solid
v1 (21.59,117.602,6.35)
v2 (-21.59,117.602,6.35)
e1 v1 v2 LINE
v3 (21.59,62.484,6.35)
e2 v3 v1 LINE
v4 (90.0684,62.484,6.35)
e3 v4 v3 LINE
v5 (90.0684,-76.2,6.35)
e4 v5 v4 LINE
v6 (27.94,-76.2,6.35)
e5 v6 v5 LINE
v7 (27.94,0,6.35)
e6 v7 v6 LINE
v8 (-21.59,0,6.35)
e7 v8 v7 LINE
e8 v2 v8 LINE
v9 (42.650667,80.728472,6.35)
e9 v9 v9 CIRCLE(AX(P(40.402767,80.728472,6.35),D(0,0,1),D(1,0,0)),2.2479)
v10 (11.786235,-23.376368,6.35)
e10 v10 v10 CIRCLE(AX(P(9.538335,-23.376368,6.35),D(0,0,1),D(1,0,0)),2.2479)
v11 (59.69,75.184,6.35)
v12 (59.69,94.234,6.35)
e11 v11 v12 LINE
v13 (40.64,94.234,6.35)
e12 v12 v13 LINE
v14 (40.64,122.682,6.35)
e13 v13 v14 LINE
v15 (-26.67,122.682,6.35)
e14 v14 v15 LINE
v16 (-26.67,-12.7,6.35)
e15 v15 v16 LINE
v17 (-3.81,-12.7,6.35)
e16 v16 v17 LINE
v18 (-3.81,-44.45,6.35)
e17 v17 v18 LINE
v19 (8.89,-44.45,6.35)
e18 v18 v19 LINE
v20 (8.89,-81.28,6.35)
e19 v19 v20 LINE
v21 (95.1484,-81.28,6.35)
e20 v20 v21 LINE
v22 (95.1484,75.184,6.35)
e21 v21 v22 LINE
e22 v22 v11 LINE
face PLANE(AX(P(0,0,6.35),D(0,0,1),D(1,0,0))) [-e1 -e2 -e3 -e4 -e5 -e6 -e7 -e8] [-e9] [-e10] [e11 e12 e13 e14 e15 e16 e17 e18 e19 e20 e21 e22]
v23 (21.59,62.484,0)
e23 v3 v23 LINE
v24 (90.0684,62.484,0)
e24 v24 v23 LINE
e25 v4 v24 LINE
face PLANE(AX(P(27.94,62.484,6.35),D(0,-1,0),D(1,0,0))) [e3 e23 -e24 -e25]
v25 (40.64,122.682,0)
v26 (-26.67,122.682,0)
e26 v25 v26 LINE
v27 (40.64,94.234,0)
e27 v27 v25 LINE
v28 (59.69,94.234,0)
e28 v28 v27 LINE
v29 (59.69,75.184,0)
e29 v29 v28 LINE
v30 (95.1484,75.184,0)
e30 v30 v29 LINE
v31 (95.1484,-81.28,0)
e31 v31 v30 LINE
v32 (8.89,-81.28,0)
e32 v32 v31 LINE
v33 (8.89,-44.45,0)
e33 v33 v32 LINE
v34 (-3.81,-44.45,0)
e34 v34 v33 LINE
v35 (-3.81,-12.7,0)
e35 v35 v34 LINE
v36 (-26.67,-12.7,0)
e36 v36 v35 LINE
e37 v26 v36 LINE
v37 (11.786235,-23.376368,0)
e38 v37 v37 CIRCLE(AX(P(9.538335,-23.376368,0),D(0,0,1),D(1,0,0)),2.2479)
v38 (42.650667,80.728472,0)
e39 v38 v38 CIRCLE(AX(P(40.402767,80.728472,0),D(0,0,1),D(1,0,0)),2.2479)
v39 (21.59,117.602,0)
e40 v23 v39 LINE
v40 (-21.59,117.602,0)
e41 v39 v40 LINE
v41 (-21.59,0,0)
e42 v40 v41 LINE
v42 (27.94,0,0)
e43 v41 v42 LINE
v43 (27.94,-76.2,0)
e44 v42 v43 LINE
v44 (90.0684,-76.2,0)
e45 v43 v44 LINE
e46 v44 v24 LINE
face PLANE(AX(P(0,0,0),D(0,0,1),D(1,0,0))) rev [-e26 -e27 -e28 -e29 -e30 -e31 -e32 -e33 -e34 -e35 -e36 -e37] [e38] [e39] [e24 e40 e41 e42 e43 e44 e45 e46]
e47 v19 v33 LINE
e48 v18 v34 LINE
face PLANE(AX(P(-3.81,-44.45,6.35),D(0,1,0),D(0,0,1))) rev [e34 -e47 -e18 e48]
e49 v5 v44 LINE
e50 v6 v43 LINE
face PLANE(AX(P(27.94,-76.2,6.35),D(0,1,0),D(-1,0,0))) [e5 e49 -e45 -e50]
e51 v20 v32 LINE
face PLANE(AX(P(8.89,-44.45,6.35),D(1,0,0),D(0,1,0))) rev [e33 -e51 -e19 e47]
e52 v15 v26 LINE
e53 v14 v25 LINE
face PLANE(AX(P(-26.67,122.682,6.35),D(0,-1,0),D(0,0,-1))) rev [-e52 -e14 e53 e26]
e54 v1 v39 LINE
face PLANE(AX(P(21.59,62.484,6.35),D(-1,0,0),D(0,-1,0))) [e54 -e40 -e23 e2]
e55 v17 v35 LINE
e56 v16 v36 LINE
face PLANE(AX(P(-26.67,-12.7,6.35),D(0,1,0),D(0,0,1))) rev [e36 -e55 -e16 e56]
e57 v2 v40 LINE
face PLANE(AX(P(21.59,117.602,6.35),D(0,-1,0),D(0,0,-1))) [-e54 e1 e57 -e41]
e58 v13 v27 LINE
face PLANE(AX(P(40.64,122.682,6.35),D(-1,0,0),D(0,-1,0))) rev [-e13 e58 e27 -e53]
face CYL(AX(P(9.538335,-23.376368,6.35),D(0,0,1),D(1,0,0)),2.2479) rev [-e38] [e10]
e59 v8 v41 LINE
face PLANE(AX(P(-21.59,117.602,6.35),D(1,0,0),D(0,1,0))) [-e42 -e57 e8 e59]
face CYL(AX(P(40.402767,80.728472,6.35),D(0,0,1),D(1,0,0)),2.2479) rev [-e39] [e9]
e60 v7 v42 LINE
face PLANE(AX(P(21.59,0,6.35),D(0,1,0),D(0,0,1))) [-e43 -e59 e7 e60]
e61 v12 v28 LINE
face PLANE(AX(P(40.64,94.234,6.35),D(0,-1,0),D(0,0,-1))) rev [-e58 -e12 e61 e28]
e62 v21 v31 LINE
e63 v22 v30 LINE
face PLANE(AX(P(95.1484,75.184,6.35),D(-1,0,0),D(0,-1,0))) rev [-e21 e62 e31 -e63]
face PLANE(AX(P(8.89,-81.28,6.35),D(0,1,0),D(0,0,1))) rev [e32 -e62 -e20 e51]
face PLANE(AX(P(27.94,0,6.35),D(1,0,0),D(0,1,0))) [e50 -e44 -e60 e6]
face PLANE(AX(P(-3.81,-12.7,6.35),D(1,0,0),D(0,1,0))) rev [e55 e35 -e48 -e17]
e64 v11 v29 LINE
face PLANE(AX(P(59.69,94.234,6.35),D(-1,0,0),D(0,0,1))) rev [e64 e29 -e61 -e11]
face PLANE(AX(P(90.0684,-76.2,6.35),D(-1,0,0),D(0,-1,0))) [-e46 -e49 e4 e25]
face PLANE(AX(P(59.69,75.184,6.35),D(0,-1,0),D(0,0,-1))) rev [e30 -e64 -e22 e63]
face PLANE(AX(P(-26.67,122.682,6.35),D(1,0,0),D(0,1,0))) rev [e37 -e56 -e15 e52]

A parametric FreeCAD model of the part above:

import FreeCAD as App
import Part
import Sketcher

V = App.Vector
Q = App.Units.Quantity


def add_polygon(sketch, points):
    """Adds a closed chain of lines whose ends are joined by coincident constraints."""
    first, n = sketch.GeometryCount, len(points)
    for a, b in zip(points, points[1:] + points[:1]):
        sketch.addGeometry(Part.LineSegment(App.Vector(*a, 0), App.Vector(*b, 0)), False)
    for i in range(n):
        sketch.addConstraint(Sketcher.Constraint("Coincident", first + i, 2, first + (i + 1) % n, 1))

doc = App.newDocument("Part")
body = doc.addObject("PartDesign::Body", "Body")

# Sketch on XY plane
sketch1 = doc.addObject("Sketcher::SketchObject", "Sketch")
body.addObject(sketch1)
sketch1.AttachmentSupport = (doc.XY_Plane, [""])
sketch1.MapMode = "FlatFace"
add_polygon(sketch1, [(40.64, 94.234), (40.64, 122.682), (-26.67, 122.682), (-26.67, -12.7), (-3.81, -12.7), (-3.81, -44.45), (8.89, -44.45), (8.89, -81.28), (95.1484, -81.28), (95.1484, 75.184), (59.69, 75.184), (59.69, 94.234)])  # lines 0-11
add_polygon(sketch1, [(90.0684, 62.484), (90.0684, -76.2), (27.94, -76.2), (27.94, 0), (-21.59, 0), (-21.59, 117.602), (21.59, 117.602), (21.59, 62.484)])  # lines 12-19
sketch1.addConstraint([
    Sketcher.Constraint("Vertical", 0),
    Sketcher.Constraint("Horizontal", 1),
    Sketcher.Constraint("Vertical", 2),
    Sketcher.Constraint("Horizontal", 3),
    Sketcher.Constraint("Vertical", 4),
    Sketcher.Constraint("Horizontal", 5),
    Sketcher.Constraint("Vertical", 6),
    Sketcher.Constraint("Horizontal", 7),
    Sketcher.Constraint("Vertical", 8),
    Sketcher.Constraint("Horizontal", 9),
    Sketcher.Constraint("Vertical", 10),
    Sketcher.Constraint("Horizontal", 11),
    Sketcher.Constraint("Vertical", 12),
    Sketcher.Constraint("Horizontal", 13),
    Sketcher.Constraint("Vertical", 14),
    Sketcher.Constraint("Horizontal", 15),
    Sketcher.Constraint("Vertical", 16),
    Sketcher.Constraint("Horizontal", 17),
    Sketcher.Constraint("Vertical", 18),
    Sketcher.Constraint("Horizontal", 19),
    Sketcher.Constraint("PointOnObject", 14, 2, -1),
    Sketcher.Constraint("Equal", 11, 10),
    Sketcher.Constraint("DistanceY", 14, 1, 14, 2, Q("3 in")),
    Sketcher.Constraint("DistanceX", 3, 1, 3, 2, Q("0.9 in")),
    Sketcher.Constraint("DistanceX", 5, 1, 5, 2, Q("0.5 in")),
    Sketcher.Constraint("DistanceX", 17, 1, 17, 2, Q("1.7 in")),
    Sketcher.Constraint("DistanceX", 1, 2, 1, 1, Q("2.65 in")),
    Sketcher.Constraint("DistanceX", 11, 2, 11, 1, Q("0.75 in")),
    Sketcher.Constraint("DistanceX", 15, 2, 15, 1, Q("1.95 in")),
    Sketcher.Constraint("DistanceY", 0, 1, 0, 2, Q("1.12 in")),
    Sketcher.Constraint("DistanceY", 2, 2, 2, 1, Q("5.33 in")),
    Sketcher.Constraint("DistanceY", 4, 2, 4, 1, Q("1.25 in")),
    Sketcher.Constraint("DistanceY", 6, 2, 6, 1, Q("1.45 in")),
    Sketcher.Constraint("DistanceY", 12, 2, 12, 1, Q("5.46 in")),
    Sketcher.Constraint("DistanceY", 16, 1, 16, 2, Q("4.63 in")),
    Sketcher.Constraint("DistanceX", -1, 1, 0, 2, Q("1.6 in")),
    Sketcher.Constraint("DistanceY", 2, 2, -1, 1, Q("0.5 in")),
    Sketcher.Constraint("DistanceX", -1, 1, 13, 2, Q("1.1 in")),
    Sketcher.Constraint("DistanceX", 12, 2, 7, 2, Q("0.2 in")),
    Sketcher.Constraint("DistanceX", 7, 1, 7, 2, Q("3.396 in")),
])
pad1 = doc.addObject("PartDesign::Pad", "Pad")
body.addObject(pad1)
pad1.Profile = sketch1
pad1.Length = Q("0.25 in")

# Sketch on XY plane
sketch2 = doc.addObject("Sketcher::SketchObject", "Sketch001")
body.addObject(sketch2)
sketch2.AttachmentSupport = (doc.XY_Plane, [""])
sketch2.MapMode = "FlatFace"
sketch2.AttachmentOffset = App.Placement(V(0, 0, 0.25 * 25.4), App.Rotation())
sketch2.addGeometry([
    Part.Circle(V(9.538335, -23.376368, 0), V(0, 0, 1), 2.2479),
    Part.Circle(V(40.402767, 80.728472, 0), V(0, 0, 1), 2.2479),
], False)
sketch2.addConstraint([
    Sketcher.Constraint("Equal", 0, 1),
    Sketcher.Constraint("Diameter", 0, Q("0.177 in")),
    Sketcher.Constraint("DistanceY", 0, 3, -1, 1, 23.376368),
    Sketcher.Constraint("DistanceX", 0, 3, 1, 3, 30.864432),
    Sketcher.Constraint("DistanceY", 0, 3, 1, 3, 104.10484),
    Sketcher.Constraint("DistanceX", -1, 1, 0, 3, 9.538335),
])
doc.recompute()
hole = doc.addObject("PartDesign::Hole", "Hole")
body.addObject(hole)
hole.Profile = sketch2
hole.ThreadType = "None"
hole.Diameter = Q("0.177 in")
hole.DepthType = "ThroughAll"

doc.recompute()
